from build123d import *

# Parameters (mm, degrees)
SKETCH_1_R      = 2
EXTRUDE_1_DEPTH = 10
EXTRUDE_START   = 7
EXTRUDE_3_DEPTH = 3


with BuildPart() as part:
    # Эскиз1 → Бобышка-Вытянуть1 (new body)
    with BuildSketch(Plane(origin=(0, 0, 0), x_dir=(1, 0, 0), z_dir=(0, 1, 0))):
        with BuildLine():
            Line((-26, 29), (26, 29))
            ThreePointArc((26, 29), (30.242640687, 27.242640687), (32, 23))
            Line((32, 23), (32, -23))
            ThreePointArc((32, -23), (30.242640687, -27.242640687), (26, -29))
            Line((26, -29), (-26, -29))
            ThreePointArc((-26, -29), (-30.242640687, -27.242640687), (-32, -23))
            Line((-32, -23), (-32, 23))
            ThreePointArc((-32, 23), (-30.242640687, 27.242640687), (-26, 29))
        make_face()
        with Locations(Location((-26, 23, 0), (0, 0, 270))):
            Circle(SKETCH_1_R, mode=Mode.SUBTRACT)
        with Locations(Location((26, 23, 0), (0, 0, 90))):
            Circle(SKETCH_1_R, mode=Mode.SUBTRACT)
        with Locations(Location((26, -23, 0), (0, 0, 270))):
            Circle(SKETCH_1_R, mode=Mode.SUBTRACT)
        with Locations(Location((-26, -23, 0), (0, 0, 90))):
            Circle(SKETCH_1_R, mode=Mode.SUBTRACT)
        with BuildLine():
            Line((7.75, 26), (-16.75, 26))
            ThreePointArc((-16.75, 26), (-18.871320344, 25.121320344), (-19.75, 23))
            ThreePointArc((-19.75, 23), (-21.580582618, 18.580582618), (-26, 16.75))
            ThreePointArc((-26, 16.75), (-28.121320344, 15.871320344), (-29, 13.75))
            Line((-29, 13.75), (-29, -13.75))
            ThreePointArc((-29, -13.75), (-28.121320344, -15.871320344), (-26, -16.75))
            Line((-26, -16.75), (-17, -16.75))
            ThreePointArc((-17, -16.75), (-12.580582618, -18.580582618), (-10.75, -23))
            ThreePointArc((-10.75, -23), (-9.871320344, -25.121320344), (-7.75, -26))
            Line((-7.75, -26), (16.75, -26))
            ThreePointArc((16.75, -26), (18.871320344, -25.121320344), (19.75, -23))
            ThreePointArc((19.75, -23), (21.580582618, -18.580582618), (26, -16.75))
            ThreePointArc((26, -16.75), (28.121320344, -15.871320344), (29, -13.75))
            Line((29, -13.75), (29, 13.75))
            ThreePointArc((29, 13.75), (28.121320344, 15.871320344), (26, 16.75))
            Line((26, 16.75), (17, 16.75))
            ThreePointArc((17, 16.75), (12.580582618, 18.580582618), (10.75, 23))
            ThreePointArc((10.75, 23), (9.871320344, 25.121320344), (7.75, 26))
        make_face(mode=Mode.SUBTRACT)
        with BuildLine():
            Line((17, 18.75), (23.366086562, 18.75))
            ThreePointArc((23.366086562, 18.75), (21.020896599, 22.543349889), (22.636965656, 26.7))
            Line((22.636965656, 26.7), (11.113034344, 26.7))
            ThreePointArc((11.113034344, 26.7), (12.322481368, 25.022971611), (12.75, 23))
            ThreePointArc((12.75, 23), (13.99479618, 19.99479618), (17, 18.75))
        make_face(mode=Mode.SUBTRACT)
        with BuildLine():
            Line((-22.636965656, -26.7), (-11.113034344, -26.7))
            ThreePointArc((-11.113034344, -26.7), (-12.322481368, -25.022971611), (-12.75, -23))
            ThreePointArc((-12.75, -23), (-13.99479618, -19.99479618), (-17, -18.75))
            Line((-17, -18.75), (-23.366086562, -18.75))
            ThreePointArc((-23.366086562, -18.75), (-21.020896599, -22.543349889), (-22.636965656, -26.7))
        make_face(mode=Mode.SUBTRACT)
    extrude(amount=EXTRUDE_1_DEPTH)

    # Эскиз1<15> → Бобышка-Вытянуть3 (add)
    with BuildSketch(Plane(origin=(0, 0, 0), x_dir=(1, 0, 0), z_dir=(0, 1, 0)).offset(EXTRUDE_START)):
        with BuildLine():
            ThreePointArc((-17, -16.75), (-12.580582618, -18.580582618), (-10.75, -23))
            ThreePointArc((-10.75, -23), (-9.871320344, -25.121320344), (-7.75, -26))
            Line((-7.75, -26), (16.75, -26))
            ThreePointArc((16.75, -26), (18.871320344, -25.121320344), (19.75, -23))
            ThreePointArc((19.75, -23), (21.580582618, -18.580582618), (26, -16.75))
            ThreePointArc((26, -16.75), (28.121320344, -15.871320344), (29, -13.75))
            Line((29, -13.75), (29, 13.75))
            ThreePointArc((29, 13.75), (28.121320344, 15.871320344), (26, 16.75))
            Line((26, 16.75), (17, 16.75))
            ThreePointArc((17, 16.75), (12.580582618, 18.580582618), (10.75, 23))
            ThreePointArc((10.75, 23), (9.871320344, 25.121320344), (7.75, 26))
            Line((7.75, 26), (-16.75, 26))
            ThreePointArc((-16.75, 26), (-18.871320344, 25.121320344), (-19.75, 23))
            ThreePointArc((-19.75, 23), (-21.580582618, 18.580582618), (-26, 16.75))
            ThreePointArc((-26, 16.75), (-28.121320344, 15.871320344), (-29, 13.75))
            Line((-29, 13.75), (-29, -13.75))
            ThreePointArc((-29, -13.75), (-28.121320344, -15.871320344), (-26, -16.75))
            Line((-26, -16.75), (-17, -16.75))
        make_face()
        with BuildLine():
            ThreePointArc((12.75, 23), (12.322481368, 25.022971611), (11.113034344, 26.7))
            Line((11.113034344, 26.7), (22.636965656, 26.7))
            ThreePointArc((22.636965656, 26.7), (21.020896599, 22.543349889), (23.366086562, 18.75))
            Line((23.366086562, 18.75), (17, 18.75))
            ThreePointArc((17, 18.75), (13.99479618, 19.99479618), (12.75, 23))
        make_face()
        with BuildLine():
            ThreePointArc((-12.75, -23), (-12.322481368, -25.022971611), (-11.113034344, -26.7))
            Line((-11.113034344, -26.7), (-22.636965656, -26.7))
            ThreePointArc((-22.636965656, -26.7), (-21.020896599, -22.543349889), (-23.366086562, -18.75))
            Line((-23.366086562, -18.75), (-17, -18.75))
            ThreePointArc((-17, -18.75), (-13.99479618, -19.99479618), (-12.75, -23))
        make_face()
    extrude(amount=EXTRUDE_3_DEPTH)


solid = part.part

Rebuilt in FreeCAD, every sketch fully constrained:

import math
import FreeCAD as App
import Part
import Sketcher
from FreeCAD import Vector

doc = App.newDocument("Part")
params = doc.addObject("Spreadsheet::Sheet", "Params")
for row, (alias, value) in enumerate([
    ("sketch1_diameter", "4 mm"),
    ("sketch1_radius", "6 mm"),
    ("sketch1_radius2", "5 mm"),
    ("sketch1_radius3", "3 mm"),
    ("sketch1_width", "52 mm"),
    ("pad1_length", "10 mm"),
    ("sketch2_radius", "3 mm"),
    ("sketch2_radius2", "5 mm"),
    ("sketch2_width", "9 mm"),
    ("sketch2_radius3", "6.25 mm"),
    ("sketch2_width2", "24.5 mm"),
    ("pad2_length", "3 mm"),
], start=1):
    params.set(f"A{row}", alias)
    params.set(f"B{row}", "=" + value)
    params.setAlias(f"B{row}", alias)

body = doc.addObject("PartDesign::Body", "Body")

# Sketch on XZ plane
sketch1 = body.newObject("Sketcher::SketchObject", "Sketch")
sketch1.AttachmentSupport = (doc.getObject("XZ_Plane"), [""])
sketch1.MapMode = "FlatFace"
sketch1.addGeometry([
    Part.LineSegment(Vector(26, -29, 0), Vector(-26, -29, 0)),  # 0
    Part.ArcOfCircle(Part.Circle(Vector(-26, -23, 0), Vector(0, 0, 1), 6), math.radians(180), math.radians(270)),  # 1
    Part.LineSegment(Vector(-32, -23, 0), Vector(-32, 23, 0)),  # 2
    Part.ArcOfCircle(Part.Circle(Vector(-26, 23, 0), Vector(0, 0, 1), 6), math.radians(90), math.radians(180)),  # 3
    Part.LineSegment(Vector(-26, 29, 0), Vector(26, 29, 0)),  # 4
    Part.ArcOfCircle(Part.Circle(Vector(26, 23, 0), Vector(0, 0, 1), 6), math.radians(0), math.radians(90)),  # 5
    Part.LineSegment(Vector(32, 23, 0), Vector(32, -23, 0)),  # 6
    Part.ArcOfCircle(Part.Circle(Vector(26, -23, 0), Vector(0, 0, 1), 6), math.radians(-90), math.radians(0)),  # 7
    Part.Circle(Vector(26, 23, 0), Vector(0, 0, 1), 2),  # 8
    Part.ArcOfCircle(Part.Circle(Vector(-26, 23, 0), Vector(0, 0, 1), 5), math.radians(-58), math.radians(48)),  # 9
    Part.LineSegment(Vector(-23.4, 18.8, 0), Vector(-17, 18.8, 0)),  # 10
    Part.ArcOfCircle(Part.Circle(Vector(-17, 23, 0), Vector(0, 0, 1), 4.2), math.radians(-90), math.radians(0)),  # 11
    Part.ArcOfCircle(Part.Circle(Vector(-7.8, 23, 0), Vector(0, 0, 1), 5), math.radians(132), math.radians(180)),  # 12
    Part.LineSegment(Vector(-11.1, 26.7, 0), Vector(-22.6, 26.7, 0)),  # 13
    Part.Circle(Vector(-26, 23, 0), Vector(0, 0, 1), 2),  # 14
    Part.Circle(Vector(26, -23, 0), Vector(0, 0, 1), 2),  # 15
    Part.ArcOfCircle(Part.Circle(Vector(17, -23, 0), Vector(0, 0, 1), 4.2), math.radians(90), math.radians(180)),  # 16
    Part.ArcOfCircle(Part.Circle(Vector(7.8, -23, 0), Vector(0, 0, 1), 5), math.radians(-48), math.radians(0)),  # 17
    Part.LineSegment(Vector(11.1, -26.7, 0), Vector(22.6, -26.7, 0)),  # 18
    Part.ArcOfCircle(Part.Circle(Vector(26, -23, 0), Vector(0, 0, 1), 5), math.radians(122), math.radians(228)),  # 19
    Part.LineSegment(Vector(23.4, -18.8, 0), Vector(17, -18.8, 0)),  # 20
    Part.ArcOfCircle(Part.Circle(Vector(7.8, -23, 0), Vector(0, 0, 1), 3), math.radians(-90), math.radians(0)),  # 21
    Part.ArcOfCircle(Part.Circle(Vector(17, -23, 0), Vector(0, 0, 1), 6.3), math.radians(90), math.radians(180)),  # 22
    Part.LineSegment(Vector(17, -16.8, 0), Vector(26, -16.8, 0)),  # 23
    Part.ArcOfCircle(Part.Circle(Vector(26, -13.8, 0), Vector(0, 0, 1), 3), math.radians(-90), math.radians(0)),  # 24
    Part.LineSegment(Vector(29, -13.8, 0), Vector(29, 13.8, 0)),  # 25
    Part.ArcOfCircle(Part.Circle(Vector(26, 13.8, 0), Vector(0, 0, 1), 3), math.radians(0), math.radians(90)),  # 26
    Part.ArcOfCircle(Part.Circle(Vector(26, 23, 0), Vector(0, 0, 1), 6.3), math.radians(-180), math.radians(-90)),  # 27
    Part.ArcOfCircle(Part.Circle(Vector(16.8, 23, 0), Vector(0, 0, 1), 3), math.radians(0), math.radians(90)),  # 28
    Part.LineSegment(Vector(16.8, 26, 0), Vector(-7.8, 26, 0)),  # 29
    Part.ArcOfCircle(Part.Circle(Vector(-7.8, 23, 0), Vector(0, 0, 1), 3), math.radians(90), math.radians(180)),  # 30
    Part.ArcOfCircle(Part.Circle(Vector(-17, 23, 0), Vector(0, 0, 1), 6.3), math.radians(-90), math.radians(0)),  # 31
    Part.LineSegment(Vector(-17, 16.8, 0), Vector(-26, 16.8, 0)),  # 32
    Part.ArcOfCircle(Part.Circle(Vector(-26, 13.8, 0), Vector(0, 0, 1), 3), math.radians(90), math.radians(180)),  # 33
    Part.LineSegment(Vector(-29, 13.8, 0), Vector(-29, -13.8, 0)),  # 34
    Part.ArcOfCircle(Part.Circle(Vector(-26, -13.8, 0), Vector(0, 0, 1), 3), math.radians(180), math.radians(270)),  # 35
    Part.ArcOfCircle(Part.Circle(Vector(-26, -23, 0), Vector(0, 0, 1), 6.3), math.radians(0), math.radians(90)),  # 36
    Part.ArcOfCircle(Part.Circle(Vector(-16.8, -23, 0), Vector(0, 0, 1), 3), math.radians(180), math.radians(270)),  # 37
    Part.LineSegment(Vector(-16.8, -26, 0), Vector(7.8, -26, 0)),  # 38
    Part.Circle(Vector(-26, -23, 0), Vector(0, 0, 1), 2),  # 39
], False)
sketch1.addConstraint([
    Sketcher.Constraint("Tangent", 0, 2, 1, 2),
    Sketcher.Constraint("Tangent", 1, 1, 2, 1),
    Sketcher.Constraint("Tangent", 2, 2, 3, 2),
    Sketcher.Constraint("Tangent", 3, 1, 4, 1),
    Sketcher.Constraint("Tangent", 4, 2, 5, 2),
    Sketcher.Constraint("Tangent", 5, 1, 6, 1),
    Sketcher.Constraint("Tangent", 6, 2, 7, 2),
    Sketcher.Constraint("Tangent", 7, 1, 0, 1),
    Sketcher.Constraint("Coincident", 9, 1, 10, 1),
    Sketcher.Constraint("Tangent", 10, 2, 11, 1),
    Sketcher.Constraint("Tangent", 11, 2, 12, 2),
    Sketcher.Constraint("Coincident", 12, 1, 13, 1),
    Sketcher.Constraint("Coincident", 13, 2, 9, 2),
    Sketcher.Constraint("Tangent", 16, 2, 17, 2),
    Sketcher.Constraint("Coincident", 17, 1, 18, 1),
    Sketcher.Constraint("Coincident", 18, 2, 19, 2),
    Sketcher.Constraint("Coincident", 19, 1, 20, 1),
    Sketcher.Constraint("Tangent", 20, 2, 16, 1),
    Sketcher.Constraint("Tangent", 21, 2, 22, 2),
    Sketcher.Constraint("Tangent", 22, 1, 23, 1),
    Sketcher.Constraint("Tangent", 23, 2, 24, 1),
    Sketcher.Constraint("Tangent", 24, 2, 25, 1),
    Sketcher.Constraint("Tangent", 25, 2, 26, 1),
    Sketcher.Constraint("Tangent", 26, 2, 27, 2),
    Sketcher.Constraint("Tangent", 27, 1, 28, 1),
    Sketcher.Constraint("Tangent", 28, 2, 29, 1),
    Sketcher.Constraint("Tangent", 29, 2, 30, 1),
    Sketcher.Constraint("Tangent", 30, 2, 31, 2),
    Sketcher.Constraint("Tangent", 31, 1, 32, 1),
    Sketcher.Constraint("Tangent", 32, 2, 33, 1),
    Sketcher.Constraint("Tangent", 33, 2, 34, 1),
    Sketcher.Constraint("Tangent", 34, 2, 35, 1),
    Sketcher.Constraint("Tangent", 35, 2, 36, 2),
    Sketcher.Constraint("Tangent", 36, 1, 37, 1),
    Sketcher.Constraint("Tangent", 37, 2, 38, 1),
    Sketcher.Constraint("Tangent", 38, 2, 21, 1),
    Sketcher.Constraint("Horizontal", 0),
    Sketcher.Constraint("Vertical", 2),
    Sketcher.Constraint("Horizontal", 4),
    Sketcher.Constraint("Vertical", 6),
    Sketcher.Constraint("Horizontal", 10),
    Sketcher.Constraint("Horizontal", 13),
    Sketcher.Constraint("Horizontal", 18),
    Sketcher.Constraint("Horizontal", 20),
    Sketcher.Constraint("Horizontal", 23),
    Sketcher.Constraint("Vertical", 25),
    Sketcher.Constraint("Horizontal", 29),
    Sketcher.Constraint("Horizontal", 32),
    Sketcher.Constraint("Vertical", 34),
    Sketcher.Constraint("Horizontal", 38),
    Sketcher.Constraint("Coincident", 8, 3, 5, 3),
    Sketcher.Constraint("Coincident", 9, 3, 3, 3),
    Sketcher.Constraint("Coincident", 14, 3, 3, 3),
    Sketcher.Constraint("Coincident", 15, 3, 7, 3),
    Sketcher.Constraint("Coincident", 19, 3, 7, 3),
    Sketcher.Constraint("Coincident", 21, 3, 17, 3),
    Sketcher.Constraint("Coincident", 22, 3, 16, 3),
    Sketcher.Constraint("Coincident", 27, 3, 5, 3),
    Sketcher.Constraint("Coincident", 30, 3, 12, 3),
    Sketcher.Constraint("Coincident", 31, 3, 11, 3),
    Sketcher.Constraint("Coincident", 36, 3, 1, 3),
    Sketcher.Constraint("Coincident", 39, 3, 1, 3),
    Sketcher.Constraint("Equal", 1, 3),
    Sketcher.Constraint("Equal", 3, 5),
    Sketcher.Constraint("Equal", 5, 7),
    Sketcher.Constraint("Equal", 9, 12),
    Sketcher.Constraint("Equal", 8, 14),
    Sketcher.Constraint("Equal", 14, 15),
    Sketcher.Constraint("Equal", 11, 16),
    Sketcher.Constraint("Equal", 12, 17),
    Sketcher.Constraint("Equal", 17, 19),
    Sketcher.Constraint("Equal", 21, 24),
    Sketcher.Constraint("Equal", 24, 26),
    Sketcher.Constraint("Equal", 22, 27),
    Sketcher.Constraint("Equal", 26, 28),
    Sketcher.Constraint("Equal", 28, 30),
    Sketcher.Constraint("Equal", 30, 33),
    Sketcher.Constraint("Equal", 33, 35),
    Sketcher.Constraint("Equal", 31, 36),
    Sketcher.Constraint("Equal", 35, 37),
    Sketcher.Constraint("Equal", 15, 39),
    Sketcher.Constraint("Symmetric", 1, 3, 5, 3, -1, 1),
    Sketcher.Constraint("Symmetric", 11, 3, 16, 3, -1, 1),
    Sketcher.Constraint("Symmetric", 12, 1, 17, 1, -1, 1),
    Sketcher.Constraint("Symmetric", 26, 3, 33, 3, -2),
    Sketcher.Constraint("Horizontal", 11, 3, 12, 3),
    Sketcher.Constraint("Vertical", 19, 3, 24, 3),
    Sketcher.Constraint("Diameter", 8, 4.0),
    Sketcher.Constraint("Radius", 1, 6.0),
    Sketcher.Constraint("Radius", 9, 5.0),
    Sketcher.Constraint("Radius", 21, 3.0),
    Sketcher.Constraint("DistanceX", 0, 2, 0, 1, 52.0),
    Sketcher.Constraint("DistanceX", 23, 1, 23, 2, 9.0),
    Sketcher.Constraint("DistanceY", 2, 1, 2, 2, 46.0),
    Sketcher.Constraint("Radius", 11, 4.25),
    Sketcher.Constraint("DistanceY", -1, 1, 12, 1, 26.7),
])
sketch1.setExpression("Constraints[87]", "Params.sketch1_diameter")
sketch1.setExpression("Constraints[88]", "Params.sketch1_radius")
sketch1.setExpression("Constraints[89]", "Params.sketch1_radius2")
sketch1.setExpression("Constraints[90]", "Params.sketch1_radius3")
sketch1.setExpression("Constraints[91]", "Params.sketch1_width")
pad1 = body.newObject("PartDesign::Pad", "Pad")
pad1.Profile = sketch1
pad1.setExpression("Length", "Params.pad1_length")
pad1.Reversed = True

# Sketch on XZ plane
sketch2 = body.newObject("Sketcher::SketchObject", "Sketch001")
sketch2.AttachmentSupport = (doc.getObject("XZ_Plane"), [""])
sketch2.MapMode = "FlatFace"
sketch2.AttachmentOffset = App.Placement(Vector(0, 0, -7), App.Rotation())
sketch2.addGeometry([
    Part.ArcOfCircle(Part.Circle(Vector(-17, 23, 0), Vector(0, 0, 1), 6.3), math.radians(-90), math.radians(0)),  # 0
    Part.ArcOfCircle(Part.Circle(Vector(-7.8, 23, 0), Vector(0, 0, 1), 3), math.radians(90), math.radians(180)),  # 1
    Part.LineSegment(Vector(-7.8, 26, 0), Vector(16.8, 26, 0)),  # 2
    Part.ArcOfCircle(Part.Circle(Vector(16.8, 23, 0), Vector(0, 0, 1), 3), math.radians(0), math.radians(90)),  # 3
    Part.ArcOfCircle(Part.Circle(Vector(26, 23, 0), Vector(0, 0, 1), 6.3), math.radians(-180), math.radians(-90)),  # 4
    Part.ArcOfCircle(Part.Circle(Vector(26, 13.8, 0), Vector(0, 0, 1), 3), math.radians(0), math.radians(90)),  # 5
    Part.LineSegment(Vector(29, 13.8, 0), Vector(29, -13.8, 0)),  # 6
    Part.ArcOfCircle(Part.Circle(Vector(26, -13.8, 0), Vector(0, 0, 1), 3), math.radians(-90), math.radians(0)),  # 7
    Part.LineSegment(Vector(26, -16.8, 0), Vector(17, -16.8, 0)),  # 8
    Part.ArcOfCircle(Part.Circle(Vector(17, -23, 0), Vector(0, 0, 1), 6.3), math.radians(90), math.radians(180)),  # 9
    Part.ArcOfCircle(Part.Circle(Vector(7.8, -23, 0), Vector(0, 0, 1), 3), math.radians(-90), math.radians(0)),  # 10
    Part.LineSegment(Vector(7.8, -26, 0), Vector(-16.8, -26, 0)),  # 11
    Part.ArcOfCircle(Part.Circle(Vector(-16.8, -23, 0), Vector(0, 0, 1), 3), math.radians(180), math.radians(270)),  # 12
    Part.ArcOfCircle(Part.Circle(Vector(-26, -23, 0), Vector(0, 0, 1), 6.3), math.radians(0), math.radians(90)),  # 13
    Part.ArcOfCircle(Part.Circle(Vector(-26, -13.8, 0), Vector(0, 0, 1), 3), math.radians(180), math.radians(270)),  # 14
    Part.LineSegment(Vector(-29, -13.8, 0), Vector(-29, 13.8, 0)),  # 15
    Part.ArcOfCircle(Part.Circle(Vector(-26, 13.8, 0), Vector(0, 0, 1), 3), math.radians(90), math.radians(180)),  # 16
    Part.LineSegment(Vector(-26, 16.8, 0), Vector(-17, 16.8, 0)),  # 17
    Part.ArcOfCircle(Part.Circle(Vector(7.8, -23, 0), Vector(0, 0, 1), 5), math.radians(-48), math.radians(0)),  # 18
    Part.ArcOfCircle(Part.Circle(Vector(17, -23, 0), Vector(0, 0, 1), 4.2), math.radians(90), math.radians(180)),  # 19
    Part.LineSegment(Vector(17, -18.8, 0), Vector(23.4, -18.8, 0)),  # 20
    Part.ArcOfCircle(Part.Circle(Vector(26, -23, 0), Vector(0, 0, 1), 5), math.radians(122), math.radians(228)),  # 21
    Part.LineSegment(Vector(22.6, -26.7, 0), Vector(11.1, -26.7, 0)),  # 22
    Part.ArcOfCircle(Part.Circle(Vector(-7.8, 23, 0), Vector(0, 0, 1), 5), math.radians(132), math.radians(180)),  # 23
    Part.ArcOfCircle(Part.Circle(Vector(-17, 23, 0), Vector(0, 0, 1), 4.2), math.radians(-90), math.radians(0)),  # 24
    Part.LineSegment(Vector(-17, 18.8, 0), Vector(-23.4, 18.8, 0)),  # 25
    Part.ArcOfCircle(Part.Circle(Vector(-26, 23, 0), Vector(0, 0, 1), 5), math.radians(-58), math.radians(48)),  # 26
    Part.LineSegment(Vector(-22.6, 26.7, 0), Vector(-11.1, 26.7, 0)),  # 27
], False)
sketch2.addConstraint([
    Sketcher.Constraint("Tangent", 0, 2, 1, 2),
    Sketcher.Constraint("Tangent", 1, 1, 2, 1),
    Sketcher.Constraint("Tangent", 2, 2, 3, 2),
    Sketcher.Constraint("Tangent", 3, 1, 4, 1),
    Sketcher.Constraint("Tangent", 4, 2, 5, 2),
    Sketcher.Constraint("Tangent", 5, 1, 6, 1),
    Sketcher.Constraint("Tangent", 6, 2, 7, 2),
    Sketcher.Constraint("Tangent", 7, 1, 8, 1),
    Sketcher.Constraint("Tangent", 8, 2, 9, 1),
    Sketcher.Constraint("Tangent", 9, 2, 10, 2),
    Sketcher.Constraint("Tangent", 10, 1, 11, 1),
    Sketcher.Constraint("Tangent", 11, 2, 12, 2),
    Sketcher.Constraint("Tangent", 12, 1, 13, 1),
    Sketcher.Constraint("Tangent", 13, 2, 14, 2),
    Sketcher.Constraint("Tangent", 14, 1, 15, 1),
    Sketcher.Constraint("Tangent", 15, 2, 16, 2),
    Sketcher.Constraint("Tangent", 16, 1, 17, 1),
    Sketcher.Constraint("Tangent", 17, 2, 0, 1),
    Sketcher.Constraint("Tangent", 18, 2, 19, 2),
    Sketcher.Constraint("Tangent", 19, 1, 20, 1),
    Sketcher.Constraint("Coincident", 20, 2, 21, 1),
    Sketcher.Constraint("Coincident", 21, 2, 22, 1),
    Sketcher.Constraint("Coincident", 22, 2, 18, 1),
    Sketcher.Constraint("Tangent", 23, 2, 24, 2),
    Sketcher.Constraint("Tangent", 24, 1, 25, 1),
    Sketcher.Constraint("Coincident", 25, 2, 26, 1),
    Sketcher.Constraint("Coincident", 26, 2, 27, 1),
    Sketcher.Constraint("Coincident", 27, 2, 23, 1),
    Sketcher.Constraint("Horizontal", 2),
    Sketcher.Constraint("Vertical", 6),
    Sketcher.Constraint("Horizontal", 8),
    Sketcher.Constraint("Horizontal", 11),
    Sketcher.Constraint("Vertical", 15),
    Sketcher.Constraint("Horizontal", 17),
    Sketcher.Constraint("Horizontal", 20),
    Sketcher.Constraint("Horizontal", 22),
    Sketcher.Constraint("Horizontal", 25),
    Sketcher.Constraint("Horizontal", 27),
    Sketcher.Constraint("Coincident", 18, 3, 10, 3),
    Sketcher.Constraint("Coincident", 19, 3, 9, 3),
    Sketcher.Constraint("Coincident", 23, 3, 1, 3),
    Sketcher.Constraint("Coincident", 24, 3, 0, 3),
    Sketcher.Constraint("Equal", 1, 3),
    Sketcher.Constraint("Equal", 0, 4),
    Sketcher.Constraint("Equal", 3, 5),
    Sketcher.Constraint("Equal", 5, 7),
    Sketcher.Constraint("Equal", 4, 9),
    Sketcher.Constraint("Equal", 7, 10),
    Sketcher.Constraint("Equal", 10, 12),
    Sketcher.Constraint("Equal", 9, 13),
    Sketcher.Constraint("Equal", 12, 14),
    Sketcher.Constraint("Equal", 14, 16),
    Sketcher.Constraint("Equal", 18, 21),
    Sketcher.Constraint("Equal", 21, 23),
    Sketcher.Constraint("Equal", 23, 26),
    Sketcher.Constraint("Symmetric", 0, 3, 9, 3, -1, 1),
    Sketcher.Constraint("Symmetric", 3, 3, 12, 3, -1, 1),
    Sketcher.Constraint("Symmetric", 5, 3, 14, 3, -1, 1),
    Sketcher.Constraint("Symmetric", 21, 3, 26, 3, -1, 1),
    Sketcher.Constraint("Symmetric", 13, 3, 21, 3, -2),
    Sketcher.Constraint("Symmetric", 7, 1, 13, 2, -2),
    Sketcher.Constraint("Horizontal", 0, 3, 1, 3),
    Sketcher.Constraint("Equal", 22, 27),
    Sketcher.Constraint("Radius", 1, 3.0),
    Sketcher.Constraint("Radius", 18, 5.0),
    Sketcher.Constraint("DistanceX", 8, 2, 8, 1, 9.0),
    Sketcher.Constraint("Radius", 0, 6.25),
    Sketcher.Constraint("DistanceX", 2, 1, 2, 2, 24.5),
    Sketcher.Constraint("DistanceY", 6, 2, 6, 1, 27.5),
    Sketcher.Constraint("DistanceY", 21, 2, -1, 1, 26.7),
])
sketch2.setExpression("Constraints[63]", "Params.sketch2_radius")
sketch2.setExpression("Constraints[64]", "Params.sketch2_radius2")
sketch2.setExpression("Constraints[65]", "Params.sketch2_width")
sketch2.setExpression("Constraints[66]", "Params.sketch2_radius3")
sketch2.setExpression("Constraints[67]", "Params.sketch2_width2")
pad2 = body.newObject("PartDesign::Pad", "Pad001")
pad2.Profile = sketch2
pad2.setExpression("Length", "Params.pad2_length")
pad2.Reversed = True

doc.recompute()
